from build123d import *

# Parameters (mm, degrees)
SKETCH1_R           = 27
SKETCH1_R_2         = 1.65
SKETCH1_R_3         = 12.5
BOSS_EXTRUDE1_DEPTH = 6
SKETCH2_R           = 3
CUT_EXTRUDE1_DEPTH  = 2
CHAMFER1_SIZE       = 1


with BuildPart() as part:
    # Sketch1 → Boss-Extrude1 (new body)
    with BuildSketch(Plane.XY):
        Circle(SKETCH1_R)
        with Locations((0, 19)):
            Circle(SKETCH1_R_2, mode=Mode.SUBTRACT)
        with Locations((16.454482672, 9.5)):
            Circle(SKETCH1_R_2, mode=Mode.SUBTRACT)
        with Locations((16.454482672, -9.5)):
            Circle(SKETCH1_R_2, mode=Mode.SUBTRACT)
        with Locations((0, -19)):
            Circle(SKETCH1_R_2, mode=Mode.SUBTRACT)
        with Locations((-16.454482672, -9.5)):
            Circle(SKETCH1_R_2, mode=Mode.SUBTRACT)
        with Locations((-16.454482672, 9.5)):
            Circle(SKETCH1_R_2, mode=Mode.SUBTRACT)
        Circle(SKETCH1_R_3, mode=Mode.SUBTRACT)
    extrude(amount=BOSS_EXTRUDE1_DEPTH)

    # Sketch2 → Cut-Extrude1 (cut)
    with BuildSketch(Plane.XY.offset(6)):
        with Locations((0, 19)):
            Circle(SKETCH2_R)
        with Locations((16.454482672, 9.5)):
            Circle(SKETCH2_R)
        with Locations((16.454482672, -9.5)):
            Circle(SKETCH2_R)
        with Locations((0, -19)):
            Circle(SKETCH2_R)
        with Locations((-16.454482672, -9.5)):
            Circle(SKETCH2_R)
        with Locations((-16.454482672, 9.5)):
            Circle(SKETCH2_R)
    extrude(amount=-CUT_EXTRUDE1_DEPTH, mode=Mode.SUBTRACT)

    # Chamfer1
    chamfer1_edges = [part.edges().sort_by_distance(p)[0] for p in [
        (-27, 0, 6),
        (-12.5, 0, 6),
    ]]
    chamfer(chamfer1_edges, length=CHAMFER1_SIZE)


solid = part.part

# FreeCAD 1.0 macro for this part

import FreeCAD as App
import Part
import Sketcher
from FreeCAD import Vector
Q = App.Units.Quantity


def edges_at(feature, points):
    """Names of the edges that pass closest to the given points."""
    edges = feature.Shape.Edges
    near = lambda p: min(range(len(edges)), key=lambda i: edges[i].distToShape(Part.Vertex(*p))[0])
    return sorted({f"Edge{near(p) + 1}" for p in points})

doc = App.newDocument("Part")
body = doc.addObject("PartDesign::Body", "Body")

# Sketch on XY plane
sketch1 = body.newObject("Sketcher::SketchObject", "Sketch")
sketch1.AttachmentSupport = (doc.getObject("XY_Plane"), [""])
sketch1.MapMode = "FlatFace"
sketch1.addGeometry([
    Part.Circle(Vector(0, 0, 0), Vector(0, 0, 1), 27),  # 0
    Part.Circle(Vector(0, -19, 0), Vector(0, 0, 1), 1.6),  # 1
    Part.Circle(Vector(-16.5, -9.5, 0), Vector(0, 0, 1), 1.6),  # 2
    Part.Circle(Vector(16.5, -9.5, 0), Vector(0, 0, 1), 1.6),  # 3
    Part.Circle(Vector(-16.5, 9.5, 0), Vector(0, 0, 1), 1.6),  # 4
    Part.Circle(Vector(0, 0, 0), Vector(0, 0, 1), 12.5),  # 5
    Part.Circle(Vector(0, 19, 0), Vector(0, 0, 1), 1.6),  # 6
    Part.Circle(Vector(16.5, 9.5, 0), Vector(0, 0, 1), 1.6),  # 7
], False)
sketch1.addConstraint([
    Sketcher.Constraint("Coincident", 0, 3, -1, 1),
    Sketcher.Constraint("Coincident", 5, 3, -1, 1),
    Sketcher.Constraint("Equal", 1, 2),
    Sketcher.Constraint("Equal", 2, 3),
    Sketcher.Constraint("Equal", 3, 4),
    Sketcher.Constraint("Equal", 4, 6),
    Sketcher.Constraint("Equal", 6, 7),
    Sketcher.Constraint("Symmetric", 3, 3, 4, 3, -1, 1),
    Sketcher.Constraint("Symmetric", 1, 3, 6, 3, -1, 1),
    Sketcher.Constraint("Symmetric", 2, 3, 7, 3, -1, 1),
    Sketcher.Constraint("Symmetric", 2, 3, 3, 3, -2),
    Sketcher.Constraint("PointOnObject", 1, 3, -2),
    Sketcher.Constraint("Diameter", 0, Q("54 mm")),
    Sketcher.Constraint("Diameter", 5, Q("25 mm")),
    Sketcher.Constraint("Diameter", 1, Q("3.3 mm")),
    Sketcher.Constraint("DistanceY", 1, 3, -1, 1, Q("19 mm")),
    Sketcher.Constraint("DistanceY", 2, 3, 4, 3, Q("19 mm")),
    Sketcher.Constraint("DistanceX", 2, 3, -1, 1, Q("16.454483 mm")),
])
pad1 = body.newObject("PartDesign::Pad", "Pad")
pad1.Profile = sketch1
pad1.Length = 6

# Sketch on XY plane
sketch2 = body.newObject("Sketcher::SketchObject", "Sketch001")
sketch2.AttachmentSupport = (doc.getObject("XY_Plane"), [""])
sketch2.MapMode = "FlatFace"
sketch2.AttachmentOffset = App.Placement(Vector(0, 0, 6), App.Rotation())
sketch2.addGeometry([
    Part.Circle(Vector(0, 19, 0), Vector(0, 0, 1), 3),  # 0
    Part.Circle(Vector(16.5, 9.5, 0), Vector(0, 0, 1), 3),  # 1
    Part.Circle(Vector(16.5, -9.5, 0), Vector(0, 0, 1), 3),  # 2
    Part.Circle(Vector(0, -19, 0), Vector(0, 0, 1), 3),  # 3
    Part.Circle(Vector(-16.5, -9.5, 0), Vector(0, 0, 1), 3),  # 4
    Part.Circle(Vector(-16.5, 9.5, 0), Vector(0, 0, 1), 3),  # 5
], False)
sketch2.addConstraint([
    Sketcher.Constraint("Equal", 0, 1),
    Sketcher.Constraint("Equal", 1, 2),
    Sketcher.Constraint("Equal", 2, 3),
    Sketcher.Constraint("Equal", 3, 4),
    Sketcher.Constraint("Equal", 4, 5),
    Sketcher.Constraint("Symmetric", 0, 3, 3, 3, -1, 1),
    Sketcher.Constraint("Symmetric", 1, 3, 4, 3, -1, 1),
    Sketcher.Constraint("Symmetric", 2, 3, 5, 3, -1, 1),
    Sketcher.Constraint("Symmetric", 2, 3, 4, 3, -2),
    Sketcher.Constraint("PointOnObject", 0, 3, -2),
    Sketcher.Constraint("Diameter", 0, Q("6 mm")),
    Sketcher.Constraint("DistanceY", -1, 1, 0, 3, Q("19 mm")),
    Sketcher.Constraint("DistanceY", 2, 3, 1, 3, Q("19 mm")),
    Sketcher.Constraint("DistanceX", -1, 1, 1, 3, Q("16.454483 mm")),
])
pocket1 = body.newObject("PartDesign::Pocket", "Pocket")
pocket1.Profile = sketch2
pocket1.Length = 2
doc.recompute()

chamfer = body.newObject("PartDesign::Chamfer", "Chamfer")
chamfer.Base = (pocket1, edges_at(pocket1, [(-27, 0, 6), (-12.5, 0, 6)]))
chamfer.Size = 1

doc.recompute()
